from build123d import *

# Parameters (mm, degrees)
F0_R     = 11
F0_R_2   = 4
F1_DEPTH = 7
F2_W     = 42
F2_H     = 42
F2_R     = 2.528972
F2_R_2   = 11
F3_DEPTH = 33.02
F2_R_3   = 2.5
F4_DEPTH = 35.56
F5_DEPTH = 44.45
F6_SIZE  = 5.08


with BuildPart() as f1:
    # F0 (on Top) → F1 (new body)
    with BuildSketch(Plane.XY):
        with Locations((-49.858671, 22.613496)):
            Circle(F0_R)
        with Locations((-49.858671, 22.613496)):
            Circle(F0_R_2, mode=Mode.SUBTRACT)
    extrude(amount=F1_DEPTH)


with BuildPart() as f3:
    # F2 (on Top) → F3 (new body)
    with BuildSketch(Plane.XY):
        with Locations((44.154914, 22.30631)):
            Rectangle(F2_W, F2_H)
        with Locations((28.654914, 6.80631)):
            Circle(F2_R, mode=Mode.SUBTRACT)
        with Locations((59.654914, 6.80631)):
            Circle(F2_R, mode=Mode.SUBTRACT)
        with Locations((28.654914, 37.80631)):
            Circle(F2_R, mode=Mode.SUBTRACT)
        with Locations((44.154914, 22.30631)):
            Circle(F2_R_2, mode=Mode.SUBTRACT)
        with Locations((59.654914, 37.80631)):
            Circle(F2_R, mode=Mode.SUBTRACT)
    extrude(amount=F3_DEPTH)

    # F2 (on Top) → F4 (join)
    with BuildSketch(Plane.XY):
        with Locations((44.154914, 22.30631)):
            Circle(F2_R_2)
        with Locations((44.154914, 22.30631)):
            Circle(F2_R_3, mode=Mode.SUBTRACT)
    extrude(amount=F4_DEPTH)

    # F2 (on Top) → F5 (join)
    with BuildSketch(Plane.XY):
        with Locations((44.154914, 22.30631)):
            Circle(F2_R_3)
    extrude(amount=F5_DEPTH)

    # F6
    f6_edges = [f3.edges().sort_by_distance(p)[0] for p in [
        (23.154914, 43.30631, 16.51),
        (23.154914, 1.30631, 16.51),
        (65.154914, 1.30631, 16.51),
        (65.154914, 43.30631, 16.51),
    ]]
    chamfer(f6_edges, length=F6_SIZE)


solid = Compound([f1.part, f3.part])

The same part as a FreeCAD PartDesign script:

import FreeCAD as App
import Part
import Sketcher

V = App.Vector
Q = App.Units.Quantity


def edges_at(feature, points):
    """Names of the edges that pass closest to the given points."""
    edges = feature.Shape.Edges
    near = lambda p: min(range(len(edges)), key=lambda i: edges[i].distToShape(Part.Vertex(*p))[0])
    return sorted({f"Edge{near(p) + 1}" for p in points})


def add_polygon(sketch, points):
    """Adds a closed chain of lines whose ends are joined by coincident constraints."""
    first, n = sketch.GeometryCount, len(points)
    for a, b in zip(points, points[1:] + points[:1]):
        sketch.addGeometry(Part.LineSegment(App.Vector(*a, 0), App.Vector(*b, 0)), False)
    for i in range(n):
        sketch.addConstraint(Sketcher.Constraint("Coincident", first + i, 2, first + (i + 1) % n, 1))

doc = App.newDocument("Part")
body = doc.addObject("PartDesign::Body", "Body")

# Sketch on XY plane
sketch1 = body.newObject("Sketcher::SketchObject", "Sketch")
sketch1.AttachmentSupport = (doc.getObject("XY_Plane"), [""])
sketch1.MapMode = "FlatFace"
sketch1.addGeometry([
    Part.Circle(V(-49.858671, 22.613496, 0), V(0, 0, 1), 11),
    Part.Circle(V(-49.858671, 22.613496, 0), V(0, 0, 1), 4),
], False)
sketch1.addConstraint([
    Sketcher.Constraint("Coincident", 1, 3, 0, 3),
    Sketcher.Constraint("Diameter", 0, Q("22 mm")),
    Sketcher.Constraint("Diameter", 1, Q("8 mm")),
    Sketcher.Constraint("DistanceX", 0, 3, -1, 1, Q("49.858671 mm")),
    Sketcher.Constraint("DistanceY", -1, 1, 0, 3, Q("22.613496 mm")),
])
pad1 = body.newObject("PartDesign::Pad", "Pad")
pad1.Profile = sketch1
pad1.Length = 7
body2 = doc.addObject("PartDesign::Body", "Body001")

# Sketch on XY plane
sketch2 = body2.newObject("Sketcher::SketchObject", "Sketch001")
sketch2.AttachmentSupport = (doc.getObject("XY_Plane001"), [""])
sketch2.MapMode = "FlatFace"
add_polygon(sketch2, [(23.154914, 43.30631), (23.154914, 1.30631), (65.154914, 1.30631), (65.154914, 43.30631)])  # lines 0-3
sketch2.addGeometry(Part.Circle(V(28.654914, 6.80631, 0), V(0, 0, 1), 2.528972), False)  # 4
sketch2.addGeometry(Part.Circle(V(59.654914, 6.80631, 0), V(0, 0, 1), 2.528972), False)  # 5
sketch2.addGeometry(Part.Circle(V(44.154914, 22.30631, 0), V(0, 0, 1), 11), False)  # 6
sketch2.addGeometry(Part.Circle(V(28.654914, 37.80631, 0), V(0, 0, 1), 2.528972), False)  # 7
sketch2.addGeometry(Part.Circle(V(59.654914, 37.80631, 0), V(0, 0, 1), 2.528972), False)  # 8
sketch2.addConstraint([
    Sketcher.Constraint("Vertical", 0),
    Sketcher.Constraint("Horizontal", 1),
    Sketcher.Constraint("Vertical", 2),
    Sketcher.Constraint("Horizontal", 3),
    Sketcher.Constraint("Equal", 4, 5),
    Sketcher.Constraint("Equal", 5, 7),
    Sketcher.Constraint("Equal", 7, 8),
    Sketcher.Constraint("Horizontal", 4, 3, 5, 3),
    Sketcher.Constraint("Horizontal", 7, 3, 8, 3),
    Sketcher.Constraint("Vertical", 4, 3, 7, 3),
    Sketcher.Constraint("Vertical", 5, 3, 8, 3),
    Sketcher.Constraint("Equal", 3, 0),
    Sketcher.Constraint("Diameter", 6, Q("22 mm")),
    Sketcher.Constraint("DistanceX", 1, 1, 1, 2, Q("42 mm")),
    Sketcher.Constraint("DistanceX", 4, 3, 5, 3, Q("31 mm")),
    Sketcher.Constraint("DistanceY", 4, 3, 7, 3, Q("31 mm")),
    Sketcher.Constraint("DistanceX", 0, 2, 6, 3, Q("21 mm")),
    Sketcher.Constraint("DistanceY", 0, 2, 6, 3, Q("21 mm")),
    Sketcher.Constraint("DistanceX", 4, 3, 6, 3, Q("15.5 mm")),
    Sketcher.Constraint("DistanceY", 4, 3, 6, 3, Q("15.5 mm")),
    Sketcher.Constraint("Diameter", 4, Q("5.057944 mm")),
    Sketcher.Constraint("DistanceY", -1, 1, 4, 3, Q("6.80631 mm")),
    Sketcher.Constraint("DistanceX", -1, 1, 4, 3, Q("28.654914 mm")),
])
pad2 = body2.newObject("PartDesign::Pad", "Pad001")
pad2.Profile = sketch2
pad2.Length = 33.02

# Sketch on XY plane
sketch3 = body2.newObject("Sketcher::SketchObject", "Sketch002")
sketch3.AttachmentSupport = (doc.getObject("XY_Plane001"), [""])
sketch3.MapMode = "FlatFace"
sketch3.addGeometry([
    Part.Circle(V(44.154914, 22.30631, 0), V(0, 0, 1), 11),
    Part.Circle(V(44.154914, 22.30631, 0), V(0, 0, 1), 2.5),
], False)
sketch3.addConstraint([
    Sketcher.Constraint("Coincident", 1, 3, 0, 3),
    Sketcher.Constraint("Diameter", 0, Q("22 mm")),
    Sketcher.Constraint("Diameter", 1, Q("5 mm")),
    Sketcher.Constraint("DistanceY", -1, 1, 0, 3, Q("22.30631 mm")),
    Sketcher.Constraint("DistanceX", -1, 1, 0, 3, Q("44.154914 mm")),
])
pad3 = body2.newObject("PartDesign::Pad", "Pad002")
pad3.Profile = sketch3
pad3.Length = 35.56

# Sketch on XY plane
sketch4 = body2.newObject("Sketcher::SketchObject", "Sketch003")
sketch4.AttachmentSupport = (doc.getObject("XY_Plane001"), [""])
sketch4.MapMode = "FlatFace"
sketch4.addGeometry(Part.Circle(V(44.154914, 22.30631, 0), V(0, 0, 1), 2.5), False)
sketch4.addConstraint([
    Sketcher.Constraint("Diameter", 0, Q("5 mm")),
    Sketcher.Constraint("DistanceY", -1, 1, 0, 3, Q("22.30631 mm")),
    Sketcher.Constraint("DistanceX", -1, 1, 0, 3, Q("44.154914 mm")),
])
pad4 = body2.newObject("PartDesign::Pad", "Pad003")
pad4.Profile = sketch4
pad4.Length = 44.45
doc.recompute()

chamfer = body2.newObject("PartDesign::Chamfer", "Chamfer")
chamfer.Base = (pad4, edges_at(pad4, [
    (23.155, 43.306, 16.51),
    (23.155, 1.306, 16.51),
    (65.155, 1.306, 16.51),
    (65.155, 43.306, 16.51),
]))
chamfer.Size = 5.08

doc.recompute()
